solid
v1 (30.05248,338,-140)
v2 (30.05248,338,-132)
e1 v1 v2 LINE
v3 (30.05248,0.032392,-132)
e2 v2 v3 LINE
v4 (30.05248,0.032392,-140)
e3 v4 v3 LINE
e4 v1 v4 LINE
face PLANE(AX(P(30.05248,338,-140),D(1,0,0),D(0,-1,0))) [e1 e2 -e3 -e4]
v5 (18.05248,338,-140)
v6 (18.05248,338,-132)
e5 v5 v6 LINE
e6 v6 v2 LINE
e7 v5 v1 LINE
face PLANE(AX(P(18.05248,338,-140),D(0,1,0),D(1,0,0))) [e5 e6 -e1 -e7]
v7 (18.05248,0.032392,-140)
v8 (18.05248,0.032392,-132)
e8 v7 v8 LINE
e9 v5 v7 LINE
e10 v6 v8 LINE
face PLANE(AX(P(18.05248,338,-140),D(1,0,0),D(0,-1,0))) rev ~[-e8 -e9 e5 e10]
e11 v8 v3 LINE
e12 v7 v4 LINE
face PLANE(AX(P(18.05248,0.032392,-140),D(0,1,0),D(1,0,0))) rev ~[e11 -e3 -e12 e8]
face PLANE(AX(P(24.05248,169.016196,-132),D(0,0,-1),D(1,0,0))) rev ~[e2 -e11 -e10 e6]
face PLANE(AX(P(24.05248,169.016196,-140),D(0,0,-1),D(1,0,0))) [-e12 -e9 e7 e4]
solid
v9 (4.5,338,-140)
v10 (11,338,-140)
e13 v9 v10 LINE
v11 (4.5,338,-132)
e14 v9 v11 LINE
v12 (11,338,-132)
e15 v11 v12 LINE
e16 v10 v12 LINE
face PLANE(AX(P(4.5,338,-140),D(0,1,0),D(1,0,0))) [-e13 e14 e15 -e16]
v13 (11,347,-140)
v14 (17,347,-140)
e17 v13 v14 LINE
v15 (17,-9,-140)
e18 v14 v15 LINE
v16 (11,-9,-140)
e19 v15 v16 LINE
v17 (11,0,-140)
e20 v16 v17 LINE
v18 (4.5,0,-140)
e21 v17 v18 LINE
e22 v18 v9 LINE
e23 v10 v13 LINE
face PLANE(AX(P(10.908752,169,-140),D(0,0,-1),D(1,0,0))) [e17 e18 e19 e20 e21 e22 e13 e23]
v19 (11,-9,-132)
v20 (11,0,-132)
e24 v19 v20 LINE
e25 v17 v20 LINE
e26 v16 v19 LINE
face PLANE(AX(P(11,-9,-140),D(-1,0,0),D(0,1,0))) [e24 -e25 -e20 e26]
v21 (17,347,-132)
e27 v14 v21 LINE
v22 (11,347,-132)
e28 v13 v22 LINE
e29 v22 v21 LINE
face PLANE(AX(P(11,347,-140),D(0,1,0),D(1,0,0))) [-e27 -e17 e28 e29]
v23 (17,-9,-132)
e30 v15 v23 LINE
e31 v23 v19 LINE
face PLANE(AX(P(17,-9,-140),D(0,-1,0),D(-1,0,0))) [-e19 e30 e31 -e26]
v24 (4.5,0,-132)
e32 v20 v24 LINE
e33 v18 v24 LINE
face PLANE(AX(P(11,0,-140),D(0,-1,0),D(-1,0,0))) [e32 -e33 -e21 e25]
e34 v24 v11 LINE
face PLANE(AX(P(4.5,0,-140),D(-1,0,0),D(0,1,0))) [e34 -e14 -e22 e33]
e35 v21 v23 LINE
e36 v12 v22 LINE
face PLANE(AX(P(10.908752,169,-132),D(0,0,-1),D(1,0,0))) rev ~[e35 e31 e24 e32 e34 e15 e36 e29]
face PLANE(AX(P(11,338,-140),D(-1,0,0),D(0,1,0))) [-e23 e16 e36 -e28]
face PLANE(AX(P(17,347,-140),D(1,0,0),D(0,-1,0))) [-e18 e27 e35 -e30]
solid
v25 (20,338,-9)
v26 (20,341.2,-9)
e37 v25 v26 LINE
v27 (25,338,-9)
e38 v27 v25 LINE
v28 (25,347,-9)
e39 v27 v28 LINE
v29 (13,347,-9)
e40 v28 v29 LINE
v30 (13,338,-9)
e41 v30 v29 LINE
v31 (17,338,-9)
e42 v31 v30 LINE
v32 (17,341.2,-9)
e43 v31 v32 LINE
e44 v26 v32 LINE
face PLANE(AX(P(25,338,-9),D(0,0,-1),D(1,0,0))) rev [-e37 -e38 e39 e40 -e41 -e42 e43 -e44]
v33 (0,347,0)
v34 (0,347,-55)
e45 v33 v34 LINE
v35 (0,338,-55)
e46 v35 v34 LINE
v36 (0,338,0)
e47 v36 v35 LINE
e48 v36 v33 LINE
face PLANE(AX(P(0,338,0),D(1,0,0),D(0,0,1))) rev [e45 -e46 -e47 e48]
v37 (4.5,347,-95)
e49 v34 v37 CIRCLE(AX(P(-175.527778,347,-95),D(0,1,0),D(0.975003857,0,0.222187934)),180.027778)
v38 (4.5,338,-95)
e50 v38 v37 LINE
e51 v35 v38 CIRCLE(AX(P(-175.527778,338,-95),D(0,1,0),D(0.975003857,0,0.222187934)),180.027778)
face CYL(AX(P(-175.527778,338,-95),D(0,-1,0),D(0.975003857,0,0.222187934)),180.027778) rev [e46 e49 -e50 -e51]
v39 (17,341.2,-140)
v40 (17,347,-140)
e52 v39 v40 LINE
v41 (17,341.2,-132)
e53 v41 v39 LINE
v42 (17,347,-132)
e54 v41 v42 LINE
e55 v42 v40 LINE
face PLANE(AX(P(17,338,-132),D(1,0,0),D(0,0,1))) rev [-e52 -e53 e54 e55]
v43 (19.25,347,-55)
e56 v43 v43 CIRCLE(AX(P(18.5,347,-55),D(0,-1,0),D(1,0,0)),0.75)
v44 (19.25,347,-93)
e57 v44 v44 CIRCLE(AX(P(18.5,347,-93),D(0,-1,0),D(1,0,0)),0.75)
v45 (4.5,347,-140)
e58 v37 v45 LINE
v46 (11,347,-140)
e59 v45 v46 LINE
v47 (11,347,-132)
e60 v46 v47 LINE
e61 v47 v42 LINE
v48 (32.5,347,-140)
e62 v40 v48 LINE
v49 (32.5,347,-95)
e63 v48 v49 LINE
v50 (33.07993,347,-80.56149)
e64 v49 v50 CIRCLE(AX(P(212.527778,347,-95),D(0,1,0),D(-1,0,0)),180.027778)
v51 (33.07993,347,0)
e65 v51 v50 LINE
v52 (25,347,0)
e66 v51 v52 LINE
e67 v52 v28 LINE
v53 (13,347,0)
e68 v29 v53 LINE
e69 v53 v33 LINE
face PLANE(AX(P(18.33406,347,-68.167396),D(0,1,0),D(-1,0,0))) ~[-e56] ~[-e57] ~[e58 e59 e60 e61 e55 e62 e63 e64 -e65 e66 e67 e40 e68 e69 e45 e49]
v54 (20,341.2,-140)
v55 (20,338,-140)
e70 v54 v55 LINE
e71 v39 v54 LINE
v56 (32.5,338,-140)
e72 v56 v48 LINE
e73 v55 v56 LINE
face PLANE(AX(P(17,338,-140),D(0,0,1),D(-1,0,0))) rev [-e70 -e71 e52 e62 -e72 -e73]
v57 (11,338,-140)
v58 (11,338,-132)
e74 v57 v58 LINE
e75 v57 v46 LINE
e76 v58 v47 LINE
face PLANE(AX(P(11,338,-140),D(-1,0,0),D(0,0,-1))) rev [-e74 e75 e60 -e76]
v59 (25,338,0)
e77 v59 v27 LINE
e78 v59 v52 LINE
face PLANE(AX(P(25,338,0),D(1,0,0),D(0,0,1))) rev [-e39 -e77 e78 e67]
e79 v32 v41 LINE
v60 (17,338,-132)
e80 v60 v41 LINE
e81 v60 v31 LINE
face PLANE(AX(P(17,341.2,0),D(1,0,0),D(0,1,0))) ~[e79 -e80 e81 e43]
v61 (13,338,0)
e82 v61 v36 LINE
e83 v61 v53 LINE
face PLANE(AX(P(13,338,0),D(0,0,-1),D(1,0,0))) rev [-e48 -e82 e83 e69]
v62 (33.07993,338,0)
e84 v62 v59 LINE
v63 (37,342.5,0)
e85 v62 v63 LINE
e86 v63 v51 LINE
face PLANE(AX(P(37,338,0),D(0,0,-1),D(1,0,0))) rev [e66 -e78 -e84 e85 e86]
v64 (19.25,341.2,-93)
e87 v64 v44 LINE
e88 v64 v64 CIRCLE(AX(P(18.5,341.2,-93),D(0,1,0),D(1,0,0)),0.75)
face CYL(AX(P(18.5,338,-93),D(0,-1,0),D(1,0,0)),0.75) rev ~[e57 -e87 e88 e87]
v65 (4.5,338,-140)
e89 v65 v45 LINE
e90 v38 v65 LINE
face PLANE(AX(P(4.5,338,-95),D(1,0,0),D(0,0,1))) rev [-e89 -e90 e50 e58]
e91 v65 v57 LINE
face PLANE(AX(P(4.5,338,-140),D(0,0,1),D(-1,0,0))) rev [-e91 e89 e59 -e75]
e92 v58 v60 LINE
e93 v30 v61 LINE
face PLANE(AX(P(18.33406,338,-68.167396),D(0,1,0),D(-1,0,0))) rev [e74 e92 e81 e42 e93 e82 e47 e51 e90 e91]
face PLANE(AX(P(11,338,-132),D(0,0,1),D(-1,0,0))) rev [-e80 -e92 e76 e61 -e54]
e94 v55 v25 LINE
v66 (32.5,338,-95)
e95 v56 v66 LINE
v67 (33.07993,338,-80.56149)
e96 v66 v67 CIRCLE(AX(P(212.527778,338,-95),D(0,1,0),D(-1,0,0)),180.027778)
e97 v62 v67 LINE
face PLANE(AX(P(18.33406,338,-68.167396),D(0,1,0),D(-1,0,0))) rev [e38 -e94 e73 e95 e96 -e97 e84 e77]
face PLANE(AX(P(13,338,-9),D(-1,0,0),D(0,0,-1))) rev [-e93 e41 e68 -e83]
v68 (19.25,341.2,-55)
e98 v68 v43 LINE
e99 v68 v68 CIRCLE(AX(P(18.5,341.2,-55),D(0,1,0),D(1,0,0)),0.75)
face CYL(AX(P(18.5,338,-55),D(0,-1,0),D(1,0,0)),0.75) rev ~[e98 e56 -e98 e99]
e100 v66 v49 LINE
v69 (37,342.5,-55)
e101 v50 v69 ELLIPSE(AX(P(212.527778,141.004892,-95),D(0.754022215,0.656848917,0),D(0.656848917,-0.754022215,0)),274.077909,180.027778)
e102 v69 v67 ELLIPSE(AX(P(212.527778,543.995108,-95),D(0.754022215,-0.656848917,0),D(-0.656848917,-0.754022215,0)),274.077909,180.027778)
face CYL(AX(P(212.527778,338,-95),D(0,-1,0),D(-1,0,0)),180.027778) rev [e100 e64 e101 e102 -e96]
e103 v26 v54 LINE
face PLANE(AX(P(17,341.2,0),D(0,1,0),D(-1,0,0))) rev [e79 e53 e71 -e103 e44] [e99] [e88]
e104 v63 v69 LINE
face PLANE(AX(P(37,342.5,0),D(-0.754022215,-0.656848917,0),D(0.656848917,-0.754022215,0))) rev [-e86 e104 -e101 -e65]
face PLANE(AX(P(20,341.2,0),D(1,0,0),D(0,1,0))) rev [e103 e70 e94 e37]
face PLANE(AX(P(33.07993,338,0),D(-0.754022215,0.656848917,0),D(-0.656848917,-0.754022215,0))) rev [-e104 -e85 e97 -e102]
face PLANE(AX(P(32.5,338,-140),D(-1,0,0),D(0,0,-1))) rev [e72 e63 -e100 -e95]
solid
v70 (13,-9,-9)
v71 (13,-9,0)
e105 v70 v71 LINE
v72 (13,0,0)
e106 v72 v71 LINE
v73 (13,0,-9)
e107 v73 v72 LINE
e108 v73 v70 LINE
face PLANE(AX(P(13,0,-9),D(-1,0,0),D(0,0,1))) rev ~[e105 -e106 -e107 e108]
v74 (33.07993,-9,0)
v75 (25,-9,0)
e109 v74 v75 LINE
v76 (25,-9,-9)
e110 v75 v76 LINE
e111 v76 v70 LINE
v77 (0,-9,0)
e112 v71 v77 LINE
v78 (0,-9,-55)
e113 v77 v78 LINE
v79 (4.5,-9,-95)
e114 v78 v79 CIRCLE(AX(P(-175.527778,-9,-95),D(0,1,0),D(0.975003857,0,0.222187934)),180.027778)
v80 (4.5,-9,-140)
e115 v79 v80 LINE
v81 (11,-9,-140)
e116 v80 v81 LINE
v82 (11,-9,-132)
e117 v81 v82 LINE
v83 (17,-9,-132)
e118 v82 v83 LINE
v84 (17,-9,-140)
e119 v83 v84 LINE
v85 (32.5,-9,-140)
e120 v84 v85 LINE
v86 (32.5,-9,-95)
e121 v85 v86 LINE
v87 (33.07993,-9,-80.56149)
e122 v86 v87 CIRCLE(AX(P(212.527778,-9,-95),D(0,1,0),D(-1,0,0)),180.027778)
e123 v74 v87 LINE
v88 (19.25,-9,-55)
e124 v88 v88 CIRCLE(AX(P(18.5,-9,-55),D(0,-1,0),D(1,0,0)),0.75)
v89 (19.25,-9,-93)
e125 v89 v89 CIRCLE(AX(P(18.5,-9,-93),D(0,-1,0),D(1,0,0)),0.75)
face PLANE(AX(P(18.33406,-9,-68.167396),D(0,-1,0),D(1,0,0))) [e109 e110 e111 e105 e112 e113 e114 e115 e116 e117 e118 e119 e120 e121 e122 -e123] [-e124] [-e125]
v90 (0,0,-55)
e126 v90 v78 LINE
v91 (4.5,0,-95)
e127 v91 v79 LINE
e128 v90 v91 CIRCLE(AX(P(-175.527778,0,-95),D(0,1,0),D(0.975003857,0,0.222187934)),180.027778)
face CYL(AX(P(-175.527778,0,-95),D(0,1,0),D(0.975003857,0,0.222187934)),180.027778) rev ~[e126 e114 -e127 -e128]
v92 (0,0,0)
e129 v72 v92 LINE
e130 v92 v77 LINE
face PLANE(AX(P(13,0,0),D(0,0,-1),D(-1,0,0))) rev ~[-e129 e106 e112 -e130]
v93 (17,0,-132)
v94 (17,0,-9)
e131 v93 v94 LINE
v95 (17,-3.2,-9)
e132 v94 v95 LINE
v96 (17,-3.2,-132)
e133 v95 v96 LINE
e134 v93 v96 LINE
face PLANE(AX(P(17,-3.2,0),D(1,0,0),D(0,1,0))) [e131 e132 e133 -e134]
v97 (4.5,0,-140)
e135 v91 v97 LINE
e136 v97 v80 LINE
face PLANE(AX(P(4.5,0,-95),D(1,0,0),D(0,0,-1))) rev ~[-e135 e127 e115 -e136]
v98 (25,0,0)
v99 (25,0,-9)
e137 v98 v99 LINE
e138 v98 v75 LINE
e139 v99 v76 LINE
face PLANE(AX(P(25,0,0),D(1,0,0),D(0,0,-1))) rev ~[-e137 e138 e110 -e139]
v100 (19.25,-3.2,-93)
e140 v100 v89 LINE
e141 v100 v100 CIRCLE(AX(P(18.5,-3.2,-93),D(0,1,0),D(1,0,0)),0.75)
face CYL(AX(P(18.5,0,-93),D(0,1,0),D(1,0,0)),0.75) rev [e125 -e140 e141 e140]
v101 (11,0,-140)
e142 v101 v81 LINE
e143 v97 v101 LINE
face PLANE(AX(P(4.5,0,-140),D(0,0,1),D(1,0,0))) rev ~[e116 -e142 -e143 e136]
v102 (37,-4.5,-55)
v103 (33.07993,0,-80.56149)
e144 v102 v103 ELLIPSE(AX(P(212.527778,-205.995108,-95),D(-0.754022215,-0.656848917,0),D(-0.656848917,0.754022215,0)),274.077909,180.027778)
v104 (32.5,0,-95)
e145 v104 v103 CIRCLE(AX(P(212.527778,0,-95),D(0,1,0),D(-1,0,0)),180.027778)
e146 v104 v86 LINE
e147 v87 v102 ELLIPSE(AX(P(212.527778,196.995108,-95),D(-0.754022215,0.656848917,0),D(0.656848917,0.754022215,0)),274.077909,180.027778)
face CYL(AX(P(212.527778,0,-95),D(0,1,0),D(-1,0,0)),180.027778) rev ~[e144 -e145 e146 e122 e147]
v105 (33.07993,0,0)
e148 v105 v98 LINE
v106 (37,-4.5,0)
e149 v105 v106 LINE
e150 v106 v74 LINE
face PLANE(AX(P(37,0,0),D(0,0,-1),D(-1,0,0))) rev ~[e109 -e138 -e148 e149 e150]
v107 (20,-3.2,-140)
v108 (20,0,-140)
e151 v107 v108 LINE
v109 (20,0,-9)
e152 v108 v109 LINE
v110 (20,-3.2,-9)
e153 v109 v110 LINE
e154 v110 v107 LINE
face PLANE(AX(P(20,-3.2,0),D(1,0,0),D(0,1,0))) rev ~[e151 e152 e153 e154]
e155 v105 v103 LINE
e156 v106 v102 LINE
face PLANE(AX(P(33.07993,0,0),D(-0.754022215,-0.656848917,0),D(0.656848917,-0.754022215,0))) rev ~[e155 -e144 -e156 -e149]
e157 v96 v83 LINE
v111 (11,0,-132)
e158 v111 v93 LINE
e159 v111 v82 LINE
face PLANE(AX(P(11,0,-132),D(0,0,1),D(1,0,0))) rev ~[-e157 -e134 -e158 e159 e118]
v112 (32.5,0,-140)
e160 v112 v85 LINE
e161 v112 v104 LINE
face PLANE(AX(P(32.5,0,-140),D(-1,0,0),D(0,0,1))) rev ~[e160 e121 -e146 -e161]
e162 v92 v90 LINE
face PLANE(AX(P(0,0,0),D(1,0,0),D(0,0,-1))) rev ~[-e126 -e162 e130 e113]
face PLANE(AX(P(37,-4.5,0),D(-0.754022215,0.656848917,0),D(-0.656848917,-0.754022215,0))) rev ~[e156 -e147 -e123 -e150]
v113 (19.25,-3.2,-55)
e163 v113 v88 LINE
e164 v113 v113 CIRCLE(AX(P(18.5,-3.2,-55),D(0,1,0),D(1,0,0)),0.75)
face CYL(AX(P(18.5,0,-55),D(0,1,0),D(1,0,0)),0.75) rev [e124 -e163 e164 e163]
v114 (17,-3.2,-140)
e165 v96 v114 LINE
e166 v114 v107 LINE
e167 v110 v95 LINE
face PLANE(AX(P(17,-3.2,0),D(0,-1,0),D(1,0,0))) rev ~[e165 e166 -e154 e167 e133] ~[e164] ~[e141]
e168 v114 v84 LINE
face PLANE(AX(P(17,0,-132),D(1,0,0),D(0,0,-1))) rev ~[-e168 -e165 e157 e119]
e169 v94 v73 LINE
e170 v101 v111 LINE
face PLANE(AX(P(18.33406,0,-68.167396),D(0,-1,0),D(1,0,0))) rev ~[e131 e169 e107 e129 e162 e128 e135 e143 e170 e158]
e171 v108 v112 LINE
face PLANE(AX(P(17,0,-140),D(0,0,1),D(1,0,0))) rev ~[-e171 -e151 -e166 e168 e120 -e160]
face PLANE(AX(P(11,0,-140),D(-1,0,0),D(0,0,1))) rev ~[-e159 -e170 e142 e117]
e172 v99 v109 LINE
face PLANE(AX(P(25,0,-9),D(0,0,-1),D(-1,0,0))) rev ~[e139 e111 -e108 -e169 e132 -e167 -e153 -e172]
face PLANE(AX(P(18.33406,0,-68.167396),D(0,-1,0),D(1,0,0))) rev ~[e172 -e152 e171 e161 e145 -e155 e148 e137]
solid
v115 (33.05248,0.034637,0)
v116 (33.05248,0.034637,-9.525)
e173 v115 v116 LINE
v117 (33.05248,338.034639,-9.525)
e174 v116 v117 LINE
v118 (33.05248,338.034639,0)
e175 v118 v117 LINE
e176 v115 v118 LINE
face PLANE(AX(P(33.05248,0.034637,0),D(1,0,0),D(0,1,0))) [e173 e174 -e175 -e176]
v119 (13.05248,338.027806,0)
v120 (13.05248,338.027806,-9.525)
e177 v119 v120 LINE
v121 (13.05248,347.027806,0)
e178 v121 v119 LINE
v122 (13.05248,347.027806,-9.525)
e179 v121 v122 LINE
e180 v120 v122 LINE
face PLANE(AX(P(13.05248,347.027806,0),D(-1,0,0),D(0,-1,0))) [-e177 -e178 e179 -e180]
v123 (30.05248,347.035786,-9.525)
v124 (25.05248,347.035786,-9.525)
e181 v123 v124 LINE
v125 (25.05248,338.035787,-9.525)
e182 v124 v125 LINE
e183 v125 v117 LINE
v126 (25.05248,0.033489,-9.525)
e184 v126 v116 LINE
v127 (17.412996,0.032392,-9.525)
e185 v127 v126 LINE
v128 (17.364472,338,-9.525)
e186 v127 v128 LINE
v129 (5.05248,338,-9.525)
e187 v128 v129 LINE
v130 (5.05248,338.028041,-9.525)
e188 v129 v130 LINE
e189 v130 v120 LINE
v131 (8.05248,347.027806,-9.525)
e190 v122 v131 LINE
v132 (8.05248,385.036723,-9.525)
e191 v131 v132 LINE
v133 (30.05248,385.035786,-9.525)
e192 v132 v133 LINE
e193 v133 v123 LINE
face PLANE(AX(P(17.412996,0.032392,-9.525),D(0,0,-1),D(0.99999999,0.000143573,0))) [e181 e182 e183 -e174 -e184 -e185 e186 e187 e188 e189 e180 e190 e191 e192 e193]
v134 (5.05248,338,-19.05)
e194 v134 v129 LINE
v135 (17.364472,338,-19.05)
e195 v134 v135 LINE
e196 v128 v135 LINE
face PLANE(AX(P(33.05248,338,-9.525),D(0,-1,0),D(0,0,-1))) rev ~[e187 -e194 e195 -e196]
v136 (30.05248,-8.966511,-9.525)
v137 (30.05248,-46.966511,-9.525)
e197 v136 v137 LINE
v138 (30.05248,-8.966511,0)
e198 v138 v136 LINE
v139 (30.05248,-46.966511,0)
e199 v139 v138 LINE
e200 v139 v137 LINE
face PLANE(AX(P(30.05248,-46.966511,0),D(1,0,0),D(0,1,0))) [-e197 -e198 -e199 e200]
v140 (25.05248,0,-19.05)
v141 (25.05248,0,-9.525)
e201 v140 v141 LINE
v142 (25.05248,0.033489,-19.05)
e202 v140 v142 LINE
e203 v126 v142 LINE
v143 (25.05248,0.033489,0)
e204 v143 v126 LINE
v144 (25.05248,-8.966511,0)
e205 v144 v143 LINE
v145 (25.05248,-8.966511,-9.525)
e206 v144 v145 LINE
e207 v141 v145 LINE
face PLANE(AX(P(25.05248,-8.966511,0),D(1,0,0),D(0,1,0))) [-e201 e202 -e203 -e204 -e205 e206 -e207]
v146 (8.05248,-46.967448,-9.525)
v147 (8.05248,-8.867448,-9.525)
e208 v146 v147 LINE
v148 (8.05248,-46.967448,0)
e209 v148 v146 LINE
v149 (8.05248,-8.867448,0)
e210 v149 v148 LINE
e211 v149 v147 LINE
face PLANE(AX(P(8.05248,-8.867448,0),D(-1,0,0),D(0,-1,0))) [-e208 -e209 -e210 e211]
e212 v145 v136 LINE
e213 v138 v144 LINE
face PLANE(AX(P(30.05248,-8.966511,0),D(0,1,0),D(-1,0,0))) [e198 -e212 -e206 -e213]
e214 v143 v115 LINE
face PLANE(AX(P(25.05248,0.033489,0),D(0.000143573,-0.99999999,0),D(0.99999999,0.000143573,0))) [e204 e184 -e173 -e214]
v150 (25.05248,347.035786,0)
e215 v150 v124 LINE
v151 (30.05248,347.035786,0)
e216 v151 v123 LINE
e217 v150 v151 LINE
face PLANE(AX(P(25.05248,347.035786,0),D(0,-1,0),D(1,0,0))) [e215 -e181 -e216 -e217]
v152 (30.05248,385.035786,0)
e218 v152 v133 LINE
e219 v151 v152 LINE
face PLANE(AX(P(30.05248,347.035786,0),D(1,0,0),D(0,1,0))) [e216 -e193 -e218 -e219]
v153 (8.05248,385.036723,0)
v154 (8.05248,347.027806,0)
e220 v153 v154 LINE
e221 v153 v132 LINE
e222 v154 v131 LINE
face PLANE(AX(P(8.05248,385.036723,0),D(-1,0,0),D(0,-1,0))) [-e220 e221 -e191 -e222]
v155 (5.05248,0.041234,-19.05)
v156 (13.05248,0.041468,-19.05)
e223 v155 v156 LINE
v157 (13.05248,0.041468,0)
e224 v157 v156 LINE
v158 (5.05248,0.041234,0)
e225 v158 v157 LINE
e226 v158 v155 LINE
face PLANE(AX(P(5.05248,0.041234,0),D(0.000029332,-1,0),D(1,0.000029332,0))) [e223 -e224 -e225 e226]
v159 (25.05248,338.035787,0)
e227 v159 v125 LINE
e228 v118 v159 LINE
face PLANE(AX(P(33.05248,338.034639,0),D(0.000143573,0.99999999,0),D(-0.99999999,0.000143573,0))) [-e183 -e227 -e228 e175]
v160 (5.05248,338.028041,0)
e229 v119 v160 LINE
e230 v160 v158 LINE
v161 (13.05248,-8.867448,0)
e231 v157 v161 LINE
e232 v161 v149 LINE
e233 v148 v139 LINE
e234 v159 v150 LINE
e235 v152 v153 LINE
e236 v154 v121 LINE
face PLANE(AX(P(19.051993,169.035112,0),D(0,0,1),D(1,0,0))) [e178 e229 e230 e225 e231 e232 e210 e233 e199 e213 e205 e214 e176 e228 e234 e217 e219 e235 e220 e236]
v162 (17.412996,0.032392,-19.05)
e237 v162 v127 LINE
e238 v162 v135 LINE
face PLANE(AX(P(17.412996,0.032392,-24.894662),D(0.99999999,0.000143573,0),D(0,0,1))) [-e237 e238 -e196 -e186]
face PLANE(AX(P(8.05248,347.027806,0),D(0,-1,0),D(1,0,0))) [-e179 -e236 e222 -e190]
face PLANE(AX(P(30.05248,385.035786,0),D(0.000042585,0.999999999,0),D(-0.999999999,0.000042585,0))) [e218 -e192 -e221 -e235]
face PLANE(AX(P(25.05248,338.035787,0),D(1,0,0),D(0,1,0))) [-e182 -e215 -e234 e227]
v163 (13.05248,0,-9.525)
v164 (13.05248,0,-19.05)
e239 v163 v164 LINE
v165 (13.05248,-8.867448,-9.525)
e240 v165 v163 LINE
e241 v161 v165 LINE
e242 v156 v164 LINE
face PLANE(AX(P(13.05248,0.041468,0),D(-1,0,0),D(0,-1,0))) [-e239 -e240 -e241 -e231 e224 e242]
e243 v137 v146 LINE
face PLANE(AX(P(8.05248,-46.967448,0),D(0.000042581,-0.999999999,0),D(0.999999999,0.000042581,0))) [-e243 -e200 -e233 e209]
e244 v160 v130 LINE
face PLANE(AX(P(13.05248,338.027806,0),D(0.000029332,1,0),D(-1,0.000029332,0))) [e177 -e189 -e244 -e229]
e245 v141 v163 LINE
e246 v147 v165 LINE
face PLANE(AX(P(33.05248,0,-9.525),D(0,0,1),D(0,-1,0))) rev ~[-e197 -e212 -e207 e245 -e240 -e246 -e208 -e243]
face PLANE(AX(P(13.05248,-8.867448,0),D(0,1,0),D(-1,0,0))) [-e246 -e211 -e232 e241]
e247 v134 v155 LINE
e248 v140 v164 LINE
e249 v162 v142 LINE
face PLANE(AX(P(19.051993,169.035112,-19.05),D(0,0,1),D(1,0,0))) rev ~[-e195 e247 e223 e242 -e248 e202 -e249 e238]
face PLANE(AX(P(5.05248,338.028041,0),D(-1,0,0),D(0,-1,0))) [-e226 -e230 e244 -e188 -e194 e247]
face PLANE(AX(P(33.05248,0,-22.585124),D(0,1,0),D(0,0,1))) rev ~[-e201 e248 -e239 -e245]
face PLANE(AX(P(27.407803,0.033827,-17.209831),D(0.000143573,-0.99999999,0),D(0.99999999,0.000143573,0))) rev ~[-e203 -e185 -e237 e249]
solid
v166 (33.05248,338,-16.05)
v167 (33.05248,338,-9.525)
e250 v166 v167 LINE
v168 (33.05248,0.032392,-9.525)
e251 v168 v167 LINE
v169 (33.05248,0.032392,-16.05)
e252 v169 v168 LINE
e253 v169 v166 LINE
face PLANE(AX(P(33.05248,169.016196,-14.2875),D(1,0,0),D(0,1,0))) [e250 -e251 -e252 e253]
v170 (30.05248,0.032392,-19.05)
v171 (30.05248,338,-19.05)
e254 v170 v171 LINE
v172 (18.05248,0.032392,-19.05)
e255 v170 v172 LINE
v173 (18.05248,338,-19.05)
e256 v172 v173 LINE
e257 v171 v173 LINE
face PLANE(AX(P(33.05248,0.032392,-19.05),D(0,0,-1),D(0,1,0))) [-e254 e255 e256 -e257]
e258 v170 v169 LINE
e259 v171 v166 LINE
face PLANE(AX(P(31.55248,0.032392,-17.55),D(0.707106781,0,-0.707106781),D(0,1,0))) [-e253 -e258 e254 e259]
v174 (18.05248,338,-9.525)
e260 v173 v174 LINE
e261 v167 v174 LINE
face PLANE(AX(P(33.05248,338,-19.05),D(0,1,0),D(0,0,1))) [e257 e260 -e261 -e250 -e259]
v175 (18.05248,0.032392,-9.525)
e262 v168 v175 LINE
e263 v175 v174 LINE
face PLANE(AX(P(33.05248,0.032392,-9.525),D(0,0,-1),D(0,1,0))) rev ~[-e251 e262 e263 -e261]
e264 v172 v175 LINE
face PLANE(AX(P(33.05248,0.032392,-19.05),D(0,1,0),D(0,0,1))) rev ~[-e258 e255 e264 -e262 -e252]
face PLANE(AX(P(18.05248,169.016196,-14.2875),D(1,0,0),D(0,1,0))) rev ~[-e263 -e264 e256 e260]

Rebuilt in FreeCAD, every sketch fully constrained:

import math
import FreeCAD as App
import Part
import Sketcher
from FreeCAD import Vector
Q = App.Units.Quantity


def edges_at(feature, points):
    """Names of the edges that pass closest to the given points."""
    edges = feature.Shape.Edges
    near = lambda p: min(range(len(edges)), key=lambda i: edges[i].distToShape(Part.Vertex(*p))[0])
    return sorted({f"Edge{near(p) + 1}" for p in points})

doc = App.newDocument("Part")
body = doc.addObject("PartDesign::Body", "Body")

sketch1 = body.newObject("Sketcher::SketchObject", "Sketch")
sketch1.AttachmentSupport = (doc.getObject("XY_Plane"), [""])
sketch1.MapMode = "FlatFace"
sketch1.addGeometry(Part.LineSegment(Vector(25, 0, 0), Vector(33, 0, 0)), False)
sketch1.addGeometry(Part.LineSegment(Vector(33, 0, 0), Vector(33, 338, 0)), False)
sketch1.addGeometry(Part.LineSegment(Vector(33, 338, 0), Vector(25, 338, 0)), False)
sketch1.addGeometry(Part.LineSegment(Vector(25, 338, 0), Vector(25, 347, 0)), False)
sketch1.addGeometry(Part.LineSegment(Vector(25, 347, 0), Vector(30, 347, 0)), False)
sketch1.addGeometry(Part.LineSegment(Vector(30, 347, 0), Vector(30, 385, 0)), False)
sketch1.addGeometry(Part.LineSegment(Vector(30, 385, 0), Vector(8, 385, 0)), False)
sketch1.addGeometry(Part.LineSegment(Vector(8, 385, 0), Vector(8, 347, 0)), False)
sketch1.addGeometry(Part.LineSegment(Vector(8, 347, 0), Vector(13, 347, 0)), False)
sketch1.addGeometry(Part.LineSegment(Vector(13, 347, 0), Vector(13, 338, 0)), False)
sketch1.addGeometry(Part.LineSegment(Vector(13, 338, 0), Vector(5, 338, 0)), False)
sketch1.addGeometry(Part.LineSegment(Vector(5, 338, 0), Vector(5, 0, 0)), False)
sketch1.addGeometry(Part.LineSegment(Vector(5, 0, 0), Vector(13, 0, 0)), False)
sketch1.addGeometry(Part.LineSegment(Vector(13, 0, 0), Vector(13, -9, 0)), False)
sketch1.addGeometry(Part.LineSegment(Vector(13, -9, 0), Vector(8, -9, 0)), False)
sketch1.addGeometry(Part.LineSegment(Vector(8, -9, 0), Vector(8, -47, 0)), False)
sketch1.addGeometry(Part.LineSegment(Vector(8, -47, 0), Vector(30, -47, 0)), False)
sketch1.addGeometry(Part.LineSegment(Vector(30, -47, 0), Vector(30, -9, 0)), False)
sketch1.addGeometry(Part.LineSegment(Vector(30, -9, 0), Vector(25, -9, 0)), False)
sketch1.addGeometry(Part.LineSegment(Vector(25, -9, 0), Vector(25, 0, 0)), False)
sketch1.addConstraint(Sketcher.Constraint("Coincident", 0, 2, 1, 1))
sketch1.addConstraint(Sketcher.Constraint("Coincident", 1, 2, 2, 1))
sketch1.addConstraint(Sketcher.Constraint("Coincident", 2, 2, 3, 1))
sketch1.addConstraint(Sketcher.Constraint("Coincident", 3, 2, 4, 1))
sketch1.addConstraint(Sketcher.Constraint("Coincident", 4, 2, 5, 1))
sketch1.addConstraint(Sketcher.Constraint("Coincident", 5, 2, 6, 1))
sketch1.addConstraint(Sketcher.Constraint("Coincident", 6, 2, 7, 1))
sketch1.addConstraint(Sketcher.Constraint("Coincident", 7, 2, 8, 1))
sketch1.addConstraint(Sketcher.Constraint("Coincident", 8, 2, 9, 1))
sketch1.addConstraint(Sketcher.Constraint("Coincident", 9, 2, 10, 1))
sketch1.addConstraint(Sketcher.Constraint("Coincident", 10, 2, 11, 1))
sketch1.addConstraint(Sketcher.Constraint("Coincident", 11, 2, 12, 1))
sketch1.addConstraint(Sketcher.Constraint("Coincident", 12, 2, 13, 1))
sketch1.addConstraint(Sketcher.Constraint("Coincident", 13, 2, 14, 1))
sketch1.addConstraint(Sketcher.Constraint("Coincident", 14, 2, 15, 1))
sketch1.addConstraint(Sketcher.Constraint("Coincident", 15, 2, 16, 1))
sketch1.addConstraint(Sketcher.Constraint("Coincident", 16, 2, 17, 1))
sketch1.addConstraint(Sketcher.Constraint("Coincident", 17, 2, 18, 1))
sketch1.addConstraint(Sketcher.Constraint("Coincident", 18, 2, 19, 1))
sketch1.addConstraint(Sketcher.Constraint("Coincident", 19, 2, 0, 1))
sketch1.addConstraint(Sketcher.Constraint("Vertical", 1))
sketch1.addConstraint(Sketcher.Constraint("Vertical", 3))
sketch1.addConstraint(Sketcher.Constraint("Horizontal", 4))
sketch1.addConstraint(Sketcher.Constraint("Vertical", 5))
sketch1.addConstraint(Sketcher.Constraint("Vertical", 7))
sketch1.addConstraint(Sketcher.Constraint("Horizontal", 8))
sketch1.addConstraint(Sketcher.Constraint("Vertical", 9))
sketch1.addConstraint(Sketcher.Constraint("Vertical", 11))
sketch1.addConstraint(Sketcher.Constraint("Vertical", 13))
sketch1.addConstraint(Sketcher.Constraint("Horizontal", 14))
sketch1.addConstraint(Sketcher.Constraint("Vertical", 15))
sketch1.addConstraint(Sketcher.Constraint("Vertical", 17))
sketch1.addConstraint(Sketcher.Constraint("Horizontal", 18))
sketch1.addConstraint(Sketcher.Constraint("Vertical", 19))
sketch1.addConstraint(Sketcher.Constraint("Vertical", 9, 2, 12, 2))
sketch1.addConstraint(Sketcher.Constraint("Vertical", 7, 2, 14, 2))
sketch1.addConstraint(Sketcher.Constraint("Vertical", 5, 2, 16, 2))
sketch1.addConstraint(Sketcher.Constraint("Vertical", 3, 2, 18, 2))
sketch1.addConstraint(Sketcher.Constraint("Equal", 4, 8))
sketch1.addConstraint(Sketcher.Constraint("Equal", 3, 9))
sketch1.addConstraint(Sketcher.Constraint("Equal", 5, 17))
sketch1.addConstraint(Sketcher.Constraint("Equal", 9, 19))
sketch1.addConstraint(Sketcher.Constraint("Equal", 2, 10))
sketch1.addConstraint(Sketcher.Constraint("DistanceX", 4, 1, 4, 2, 5.0))
sketch1.addConstraint(Sketcher.Constraint("DistanceY", 1, 1, 1, 2, 338.000001))
sketch1.addConstraint(Sketcher.Constraint("DistanceY", 3, 1, 3, 2, 8.999999))
sketch1.addConstraint(Sketcher.Constraint("DistanceY", 5, 1, 5, 2, 38.0))
sketch1.addConstraint(Sketcher.Constraint("Distance", 0, 8.0))
sketch1.addConstraint(Sketcher.Constraint("Distance", 6, 22.0))
sketch1.addConstraint(Sketcher.Constraint("DistanceY", 15, 2, 15, 1, 38.1))
sketch1.addConstraint(Sketcher.Constraint("DistanceY", 7, 2, 7, 1, 38.008917))
sketch1.addConstraint(Sketcher.Constraint("DistanceY", 11, 2, 11, 1, 337.986807))
sketch1.addConstraint(Sketcher.Constraint("DistanceY", 13, 2, 13, 1, 8.908917))
sketch1.addConstraint(Sketcher.Constraint("DistanceX", -1, 1, 0, 2, 33.05248))
sketch1.addConstraint(Sketcher.Constraint("DistanceY", -1, 1, 1, 2, 338.034639))
sketch1.addConstraint(Sketcher.Constraint("DistanceY", -1, 1, 10, 2, 338.028041))
sketch1.addConstraint(Sketcher.Constraint("DistanceY", -1, 1, 12, 2, 0.041468))
sketch1.addConstraint(Sketcher.Constraint("DistanceY", 16, 2, -1, 1, 46.966511))
sketch1.addConstraint(Sketcher.Constraint("DistanceY", 1, 2, 2, 2, 0.001149))
sketch1.addConstraint(Sketcher.Constraint("DistanceY", 7, 2, 3, 2, 0.00798))
pad1 = body.newObject("PartDesign::Pad", "Pad")
pad1.Profile = sketch1
pad1.Length = 19.05
pad1.Reversed = True

sketch2 = body.newObject("Sketcher::SketchObject", "Sketch001")
sketch2.Placement = App.Placement(Vector(-0.000004, 0.029892, 0), App.Rotation(Vector(0.99999999, 0.000143573, 0), Vector(0, 0, 1.000000001), Vector(0.000143573, -0.99999999, 0), "ZXY"))
sketch2.addGeometry(Part.LineSegment(Vector(17, -10, 0), Vector(17, -25, 0)), False)
sketch2.addGeometry(Part.LineSegment(Vector(17, -25, 0), Vector(37, -25, 0)), False)
sketch2.addGeometry(Part.LineSegment(Vector(37, -25, 0), Vector(37, -10, 0)), False)
sketch2.addGeometry(Part.LineSegment(Vector(37, -10, 0), Vector(17, -10, 0)), False)
sketch2.addConstraint(Sketcher.Constraint("Coincident", 0, 2, 1, 1))
sketch2.addConstraint(Sketcher.Constraint("Coincident", 1, 2, 2, 1))
sketch2.addConstraint(Sketcher.Constraint("Coincident", 2, 2, 3, 1))
sketch2.addConstraint(Sketcher.Constraint("Coincident", 3, 2, 0, 1))
sketch2.addConstraint(Sketcher.Constraint("Vertical", 0))
sketch2.addConstraint(Sketcher.Constraint("Horizontal", 1))
sketch2.addConstraint(Sketcher.Constraint("Vertical", 2))
sketch2.addConstraint(Sketcher.Constraint("Horizontal", 3))
sketch2.addConstraint(Sketcher.Constraint("DistanceX", -1, 1, 0, 2, 17.413))
sketch2.addConstraint(Sketcher.Constraint("DistanceY", 2, 2, -1, 1, 9.525))
sketch2.addConstraint(Sketcher.Constraint("DistanceX", 1, 1, 1, 2, 19.989615))
sketch2.addConstraint(Sketcher.Constraint("DistanceY", 0, 2, 0, 1, 15.369662))
pocket1 = body.newObject("PartDesign::Pocket", "Pocket")
pocket1.Profile = sketch2
pocket1.Length = 338.001146

sketch3 = body.newObject("Sketcher::SketchObject", "Sketch002")
sketch3.AttachmentSupport = (doc.getObject("YZ_Plane"), [""])
sketch3.MapMode = "FlatFace"
sketch3.AttachmentOffset = App.Placement(Vector(0, 0, 33.05248), App.Rotation())
sketch3.addGeometry(Part.LineSegment(Vector(0, -23, 0), Vector(0, -10, 0)), False)
sketch3.addGeometry(Part.LineSegment(Vector(0, -10, 0), Vector(-57, -10, 0)), False)
sketch3.addGeometry(Part.LineSegment(Vector(-57, -10, 0), Vector(-57, -22, 0)), False)
sketch3.addGeometry(Part.LineSegment(Vector(-57, -22, 0), Vector(0, -23, 0)), False)
sketch3.addGeometry(Part.LineSegment(Vector(338, -10, 0), Vector(338, -24, 0)), False)
sketch3.addGeometry(Part.LineSegment(Vector(338, -24, 0), Vector(395, -24, 0)), False)
sketch3.addGeometry(Part.LineSegment(Vector(395, -24, 0), Vector(394, -10, 0)), False)
sketch3.addGeometry(Part.LineSegment(Vector(394, -10, 0), Vector(338, -10, 0)), False)
sketch3.addConstraint(Sketcher.Constraint("Coincident", 0, 2, 1, 1))
sketch3.addConstraint(Sketcher.Constraint("Coincident", 1, 2, 2, 1))
sketch3.addConstraint(Sketcher.Constraint("Coincident", 2, 2, 3, 1))
sketch3.addConstraint(Sketcher.Constraint("Coincident", 3, 2, 0, 1))
sketch3.addConstraint(Sketcher.Constraint("Coincident", 4, 2, 5, 1))
sketch3.addConstraint(Sketcher.Constraint("Coincident", 5, 2, 6, 1))
sketch3.addConstraint(Sketcher.Constraint("Coincident", 6, 2, 7, 1))
sketch3.addConstraint(Sketcher.Constraint("Coincident", 7, 2, 4, 1))
sketch3.addConstraint(Sketcher.Constraint("Vertical", 0))
sketch3.addConstraint(Sketcher.Constraint("Horizontal", 1))
sketch3.addConstraint(Sketcher.Constraint("Vertical", 2))
sketch3.addConstraint(Sketcher.Constraint("Vertical", 4))
sketch3.addConstraint(Sketcher.Constraint("Horizontal", 5))
sketch3.addConstraint(Sketcher.Constraint("Horizontal", 7))
sketch3.addConstraint(Sketcher.Constraint("PointOnObject", 0, 2, -2))
sketch3.addConstraint(Sketcher.Constraint("Horizontal", 1, 2, 6, 2))
sketch3.addConstraint(Sketcher.Constraint("DistanceX", -1, 1, 4, 2, 338.0))
sketch3.addConstraint(Sketcher.Constraint("Distance", 3, 57.039998))
sketch3.addConstraint(Sketcher.Constraint("DistanceY", 0, 2, -1, 1, 9.525))
sketch3.addConstraint(Sketcher.Constraint("DistanceY", 3, 2, 2, 2, 0.374999))
sketch3.addConstraint(Sketcher.Constraint("DistanceY", 4, 2, 2, 2, 2.039801))
sketch3.addConstraint(Sketcher.Constraint("DistanceX", 5, 1, 5, 2, 56.569248))
sketch3.addConstraint(Sketcher.Constraint("DistanceX", 7, 2, 7, 1, 56.421607))
sketch3.addConstraint(Sketcher.Constraint("DistanceY", 0, 1, 0, 2, 13.060124))
pocket2 = body.newObject("PartDesign::Pocket", "Pocket001")
pocket2.Profile = sketch3
pocket2.Type = "ThroughAll"
body2 = doc.addObject("PartDesign::Body", "Body001")

sketch4 = body2.newObject("Sketcher::SketchObject", "Sketch003")
sketch4.AttachmentSupport = (doc.getObject("YZ_Plane001"), [""])
sketch4.MapMode = "FlatFace"
sketch4.AttachmentOffset = App.Placement(Vector(0, 0, 33.05248), App.Rotation())
sketch4.addGeometry(Part.LineSegment(Vector(0, -10, 0), Vector(0, -19, 0)), False)
sketch4.addGeometry(Part.LineSegment(Vector(0, -19, 0), Vector(338, -19, 0)), False)
sketch4.addGeometry(Part.LineSegment(Vector(338, -19, 0), Vector(338, -10, 0)), False)
sketch4.addGeometry(Part.LineSegment(Vector(338, -10, 0), Vector(0, -10, 0)), False)
sketch4.addConstraint(Sketcher.Constraint("Coincident", 0, 2, 1, 1))
sketch4.addConstraint(Sketcher.Constraint("Coincident", 1, 2, 2, 1))
sketch4.addConstraint(Sketcher.Constraint("Coincident", 2, 2, 3, 1))
sketch4.addConstraint(Sketcher.Constraint("Coincident", 3, 2, 0, 1))
sketch4.addConstraint(Sketcher.Constraint("Vertical", 0))
sketch4.addConstraint(Sketcher.Constraint("Horizontal", 1))
sketch4.addConstraint(Sketcher.Constraint("Vertical", 2))
sketch4.addConstraint(Sketcher.Constraint("Horizontal", 3))
sketch4.addConstraint(Sketcher.Constraint("DistanceX", -1, 1, 1, 2, 338.0))
sketch4.addConstraint(Sketcher.Constraint("DistanceY", 0, 2, 0, 1, 9.525))
sketch4.addConstraint(Sketcher.Constraint("DistanceY", 0, 2, -1, 1, 19.05))
sketch4.addConstraint(Sketcher.Constraint("DistanceX", 1, 1, 1, 2, 337.967608))
pad2 = body2.newObject("PartDesign::Pad", "Pad001")
pad2.Profile = sketch4
pad2.Length = 15
pad2.Reversed = True
doc.recompute()

chamfer = body2.newObject("PartDesign::Chamfer", "Chamfer")
chamfer.Base = (pad2, edges_at(pad2, [(33.052, 169.016, -19.05)]))
chamfer.Size = 3
body3 = doc.addObject("PartDesign::Body", "Body002")

sketch5 = body3.newObject("Sketcher::SketchObject", "Sketch004")
sketch5.AttachmentSupport = (doc.getObject("XZ_Plane002"), [""])
sketch5.MapMode = "FlatFace"
sketch5.addGeometry(Part.LineSegment(Vector(13, 0, 0), Vector(0, 0, 0)), False)
sketch5.addGeometry(Part.LineSegment(Vector(0, 0, 0), Vector(0, -55, 0)), False)
sketch5.addGeometry(Part.ArcOfCircle(Part.Circle(Vector(-175.5, -95, 0), Vector(0, 0, 1), 180), math.radians(0), math.radians(12.84)), False)
sketch5.addGeometry(Part.LineSegment(Vector(4.5, -95, 0), Vector(4.5, -140, 0)), False)
sketch5.addGeometry(Part.LineSegment(Vector(4.5, -140, 0), Vector(11, -140, 0)), False)
sketch5.addGeometry(Part.LineSegment(Vector(11, -140, 0), Vector(11, -132, 0)), False)
sketch5.addGeometry(Part.LineSegment(Vector(11, -132, 0), Vector(17, -132, 0)), False)
sketch5.addGeometry(Part.LineSegment(Vector(17, -132, 0), Vector(17, -140, 0)), False)
sketch5.addGeometry(Part.LineSegment(Vector(17, -140, 0), Vector(32.5, -140, 0)), False)
sketch5.addGeometry(Part.LineSegment(Vector(32.5, -140, 0), Vector(32.5, -95, 0)), False)
sketch5.addGeometry(Part.ArcOfCircle(Part.Circle(Vector(212.5, -95, 0), Vector(0, 0, 1), 180), math.radians(167.16), math.radians(180)), False)
sketch5.addGeometry(Part.LineSegment(Vector(37, -55, 0), Vector(37, 0, 0)), False)
sketch5.addGeometry(Part.LineSegment(Vector(37, 0, 0), Vector(25, 0, 0)), False)
sketch5.addGeometry(Part.LineSegment(Vector(25, 0, 0), Vector(25, -9, 0)), False)
sketch5.addGeometry(Part.LineSegment(Vector(25, -9, 0), Vector(13, -9, 0)), False)
sketch5.addGeometry(Part.LineSegment(Vector(13, -9, 0), Vector(13, 0, 0)), False)
sketch5.addGeometry(Part.Circle(Vector(18.5, -93, 0), Vector(0, 0, 1), 0.8), False)
sketch5.addGeometry(Part.Circle(Vector(18.5, -55, 0), Vector(0, 0, 1), 0.8), False)
sketch5.addConstraint(Sketcher.Constraint("Coincident", 0, 2, 1, 1))
sketch5.addConstraint(Sketcher.Constraint("Coincident", 1, 2, 2, 2))
sketch5.addConstraint(Sketcher.Constraint("Tangent", 2, 1, 3, 1))
sketch5.addConstraint(Sketcher.Constraint("Coincident", 3, 2, 4, 1))
sketch5.addConstraint(Sketcher.Constraint("Coincident", 4, 2, 5, 1))
sketch5.addConstraint(Sketcher.Constraint("Coincident", 5, 2, 6, 1))
sketch5.addConstraint(Sketcher.Constraint("Coincident", 6, 2, 7, 1))
sketch5.addConstraint(Sketcher.Constraint("Coincident", 7, 2, 8, 1))
sketch5.addConstraint(Sketcher.Constraint("Coincident", 8, 2, 9, 1))
sketch5.addConstraint(Sketcher.Constraint("Tangent", 9, 2, 10, 2))
sketch5.addConstraint(Sketcher.Constraint("Coincident", 10, 1, 11, 1))
sketch5.addConstraint(Sketcher.Constraint("Coincident", 11, 2, 12, 1))
sketch5.addConstraint(Sketcher.Constraint("Coincident", 12, 2, 13, 1))
sketch5.addConstraint(Sketcher.Constraint("Coincident", 13, 2, 14, 1))
sketch5.addConstraint(Sketcher.Constraint("Coincident", 14, 2, 15, 1))
sketch5.addConstraint(Sketcher.Constraint("Coincident", 15, 2, 0, 1))
sketch5.addConstraint(Sketcher.Constraint("Horizontal", 0))
sketch5.addConstraint(Sketcher.Constraint("Vertical", 1))
sketch5.addConstraint(Sketcher.Constraint("Vertical", 3))
sketch5.addConstraint(Sketcher.Constraint("Horizontal", 4))
sketch5.addConstraint(Sketcher.Constraint("Vertical", 5))
sketch5.addConstraint(Sketcher.Constraint("Horizontal", 6))
sketch5.addConstraint(Sketcher.Constraint("Vertical", 7))
sketch5.addConstraint(Sketcher.Constraint("Horizontal", 8))
sketch5.addConstraint(Sketcher.Constraint("Vertical", 9))
sketch5.addConstraint(Sketcher.Constraint("Vertical", 11))
sketch5.addConstraint(Sketcher.Constraint("Horizontal", 12))
sketch5.addConstraint(Sketcher.Constraint("Vertical", 13))
sketch5.addConstraint(Sketcher.Constraint("Horizontal", 14))
sketch5.addConstraint(Sketcher.Constraint("Vertical", 15))
sketch5.addConstraint(Sketcher.Constraint("Coincident", 0, 2, -1, 1))
sketch5.addConstraint(Sketcher.Constraint("Equal", 2, 10))
sketch5.addConstraint(Sketcher.Constraint("Equal", 16, 17))
sketch5.addConstraint(Sketcher.Constraint("PointOnObject", 11, 2, -1))
sketch5.addConstraint(Sketcher.Constraint("Horizontal", 2, 3, 10, 3))
sketch5.addConstraint(Sketcher.Constraint("Horizontal", 17, 3, 1, 2))
sketch5.addConstraint(Sketcher.Constraint("Horizontal", 4, 2, 7, 2))
sketch5.addConstraint(Sketcher.Constraint("Horizontal", 1, 2, 10, 1))
sketch5.addConstraint(Sketcher.Constraint("Vertical", 16, 3, 17, 3))
sketch5.addConstraint(Sketcher.Constraint("Equal", 12, 14))
sketch5.addConstraint(Sketcher.Constraint("Diameter", 16, 1.5))
sketch5.addConstraint(Sketcher.Constraint("DistanceX", 0, 2, 0, 1, 13.0))
sketch5.addConstraint(Sketcher.Constraint("DistanceX", 6, 1, 6, 2, 6.0))
sketch5.addConstraint(Sketcher.Constraint("DistanceX", 12, 2, 12, 1, 12.0))
sketch5.addConstraint(Sketcher.Constraint("DistanceY", 1, 2, 1, 1, 55.0))
sketch5.addConstraint(Sketcher.Constraint("DistanceY", 3, 2, 3, 1, 45.0))
sketch5.addConstraint(Sketcher.Constraint("DistanceY", 5, 1, 5, 2, 8.0))
sketch5.addConstraint(Sketcher.Constraint("DistanceY", 13, 2, 13, 1, 9.0))
sketch5.addConstraint(Sketcher.Constraint("DistanceX", 4, 1, 4, 2, 6.5))
sketch5.addConstraint(Sketcher.Constraint("DistanceX", 8, 1, 8, 2, 15.5))
sketch5.addConstraint(Sketcher.Constraint("DistanceY", 2, 3, -1, 1, 95.0))
sketch5.addConstraint(Sketcher.Constraint("DistanceY", 16, 3, -1, 1, 93.0))
sketch5.addConstraint(Sketcher.Constraint("DistanceX", 2, 1, 16, 3, 14.0))
pad3 = body3.newObject("PartDesign::Pad", "Pad002")
pad3.Profile = sketch5
pad3.Length = 9

sketch6 = body3.newObject("Sketcher::SketchObject", "Sketch005")
sketch6.AttachmentSupport = (doc.getObject("XY_Plane002"), [""])
sketch6.MapMode = "FlatFace"
sketch6.addGeometry(Part.LineSegment(Vector(17, 0.8, 0), Vector(17, -3.2, 0)), False)
sketch6.addGeometry(Part.LineSegment(Vector(17, -3.2, 0), Vector(20, -3.2, 0)), False)
sketch6.addGeometry(Part.LineSegment(Vector(20, -3.2, 0), Vector(20, 0.8, 0)), False)
sketch6.addGeometry(Part.LineSegment(Vector(20, 0.8, 0), Vector(17, 0.8, 0)), False)
sketch6.addGeometry(Part.LineSegment(Vector(33.1, 0, 0), Vector(37, -4.5, 0)), False)
sketch6.addGeometry(Part.LineSegment(Vector(37, -4.5, 0), Vector(33.1, -9, 0)), False)
sketch6.addGeometry(Part.LineSegment(Vector(33.1, -9, 0), Vector(38.4, -11.9, 0)), False)
sketch6.addGeometry(Part.LineSegment(Vector(38.4, -11.9, 0), Vector(38.4, 3.1, 0)), False)
sketch6.addGeometry(Part.LineSegment(Vector(38.4, 3.1, 0), Vector(33.1, 0, 0)), False)
sketch6.addConstraint(Sketcher.Constraint("Coincident", 0, 2, 1, 1))
sketch6.addConstraint(Sketcher.Constraint("Coincident", 1, 2, 2, 1))
sketch6.addConstraint(Sketcher.Constraint("Coincident", 2, 2, 3, 1))
sketch6.addConstraint(Sketcher.Constraint("Coincident", 3, 2, 0, 1))
sketch6.addConstraint(Sketcher.Constraint("Coincident", 4, 2, 5, 1))
sketch6.addConstraint(Sketcher.Constraint("Coincident", 5, 2, 6, 1))
sketch6.addConstraint(Sketcher.Constraint("Coincident", 6, 2, 7, 1))
sketch6.addConstraint(Sketcher.Constraint("Coincident", 7, 2, 8, 1))
sketch6.addConstraint(Sketcher.Constraint("Coincident", 8, 2, 4, 1))
sketch6.addConstraint(Sketcher.Constraint("Vertical", 0))
sketch6.addConstraint(Sketcher.Constraint("Horizontal", 1))
sketch6.addConstraint(Sketcher.Constraint("Vertical", 2))
sketch6.addConstraint(Sketcher.Constraint("Horizontal", 3))
sketch6.addConstraint(Sketcher.Constraint("Vertical", 7))
sketch6.addConstraint(Sketcher.Constraint("PointOnObject", 8, 2, -1))
sketch6.addConstraint(Sketcher.Constraint("Vertical", 5, 2, 8, 2))
sketch6.addConstraint(Sketcher.Constraint("Equal", 4, 5))
sketch6.addConstraint(Sketcher.Constraint("DistanceX", 1, 1, 1, 2, 3.0))
sketch6.addConstraint(Sketcher.Constraint("DistanceX", -1, 1, 0, 2, 17.0))
sketch6.addConstraint(Sketcher.Constraint("DistanceX", -1, 1, 4, 2, 37.0))
sketch6.addConstraint(Sketcher.Constraint("DistanceY", 5, 2, -1, 1, 9.0))
sketch6.addConstraint(Sketcher.Constraint("DistanceY", 0, 2, -1, 1, 3.2))
sketch6.addConstraint(Sketcher.Constraint("Angle", 4, Q("-48.940006 deg")))
sketch6.addConstraint(Sketcher.Constraint("DistanceY", 0, 2, 0, 1, 4.019209))
sketch6.addConstraint(Sketcher.Constraint("DistanceY", 7, 1, 7, 2, 14.991597))
sketch6.addConstraint(Sketcher.Constraint("DistanceX", -1, 1, 6, 2, 38.376361))
sketch6.addConstraint(Sketcher.Constraint("DistanceY", 6, 2, -1, 1, 11.936232))
pocket3 = body3.newObject("PartDesign::Pocket", "Pocket002")
pocket3.Profile = sketch6
pocket3.Type = "ThroughAll"
body4 = doc.addObject("PartDesign::Body", "Body003")
doc.recompute()

mirroring = doc.addObject("Part::Mirroring", "Mirroring")
mirroring.Source = body3
mirroring.Base = Vector(0, 169, 0)
mirroring.Normal = Vector(0, -1, 0)
body4.BaseFeature = mirroring
doc.recompute()
body5 = doc.addObject("PartDesign::Body", "Body004")

sketch7 = body5.newObject("Sketcher::SketchObject", "Sketch006")
sketch7.AttachmentSupport = (doc.getObject("XY_Plane004"), [""])
sketch7.MapMode = "FlatFace"
sketch7.AttachmentOffset = App.Placement(Vector(0, 0, -140), App.Rotation())
sketch7.addGeometry(Part.LineSegment(Vector(17, -9, 0), Vector(11, -9, 0)), False)
sketch7.addGeometry(Part.LineSegment(Vector(11, -9, 0), Vector(11, 0, 0)), False)
sketch7.addGeometry(Part.LineSegment(Vector(11, 0, 0), Vector(4, 0, 0)), False)
sketch7.addGeometry(Part.LineSegment(Vector(4, 0, 0), Vector(4, 338, 0)), False)
sketch7.addGeometry(Part.LineSegment(Vector(4, 338, 0), Vector(11, 338, 0)), False)
sketch7.addGeometry(Part.LineSegment(Vector(11, 338, 0), Vector(11, 347, 0)), False)
sketch7.addGeometry(Part.LineSegment(Vector(11, 347, 0), Vector(17, 347, 0)), False)
sketch7.addGeometry(Part.LineSegment(Vector(17, 347, 0), Vector(17, -9, 0)), False)
sketch7.addConstraint(Sketcher.Constraint("Coincident", 0, 2, 1, 1))
sketch7.addConstraint(Sketcher.Constraint("Coincident", 1, 2, 2, 1))
sketch7.addConstraint(Sketcher.Constraint("Coincident", 2, 2, 3, 1))
sketch7.addConstraint(Sketcher.Constraint("Coincident", 3, 2, 4, 1))
sketch7.addConstraint(Sketcher.Constraint("Coincident", 4, 2, 5, 1))
sketch7.addConstraint(Sketcher.Constraint("Coincident", 5, 2, 6, 1))
sketch7.addConstraint(Sketcher.Constraint("Coincident", 6, 2, 7, 1))
sketch7.addConstraint(Sketcher.Constraint("Coincident", 7, 2, 0, 1))
sketch7.addConstraint(Sketcher.Constraint("Horizontal", 0))
sketch7.addConstraint(Sketcher.Constraint("Vertical", 1))
sketch7.addConstraint(Sketcher.Constraint("Horizontal", 2))
sketch7.addConstraint(Sketcher.Constraint("Vertical", 3))
sketch7.addConstraint(Sketcher.Constraint("Horizontal", 4))
sketch7.addConstraint(Sketcher.Constraint("Vertical", 5))
sketch7.addConstraint(Sketcher.Constraint("Horizontal", 6))
sketch7.addConstraint(Sketcher.Constraint("Vertical", 7))
sketch7.addConstraint(Sketcher.Constraint("PointOnObject", 1, 2, -1))
sketch7.addConstraint(Sketcher.Constraint("Vertical", 1, 2, 4, 2))
sketch7.addConstraint(Sketcher.Constraint("Equal", 1, 5))
sketch7.addConstraint(Sketcher.Constraint("DistanceX", 0, 2, 0, 1, 6.0))
sketch7.addConstraint(Sketcher.Constraint("DistanceY", 1, 1, 1, 2, 9.0))
sketch7.addConstraint(Sketcher.Constraint("DistanceY", 3, 1, 3, 2, 338.0))
sketch7.addConstraint(Sketcher.Constraint("DistanceX", 2, 2, 2, 1, 6.5))
sketch7.addConstraint(Sketcher.Constraint("DistanceX", -1, 1, 0, 2, 11.0))
pad4 = body5.newObject("PartDesign::Pad", "Pad003")
pad4.Profile = sketch7
pad4.Length = 8
body6 = doc.addObject("PartDesign::Body", "Body005")

sketch8 = body6.newObject("Sketcher::SketchObject", "Sketch007")
sketch8.AttachmentSupport = (doc.getObject("XY_Plane005"), [""])
sketch8.MapMode = "FlatFace"
sketch8.AttachmentOffset = App.Placement(Vector(0, 0, -140), App.Rotation())
sketch8.addGeometry(Part.LineSegment(Vector(18, 0, 0), Vector(18, 338, 0)), False)
sketch8.addGeometry(Part.LineSegment(Vector(18, 338, 0), Vector(30, 338, 0)), False)
sketch8.addGeometry(Part.LineSegment(Vector(30, 338, 0), Vector(30, 0, 0)), False)
sketch8.addGeometry(Part.LineSegment(Vector(30, 0, 0), Vector(18, 0, 0)), False)
sketch8.addConstraint(Sketcher.Constraint("Coincident", 0, 2, 1, 1))
sketch8.addConstraint(Sketcher.Constraint("Coincident", 1, 2, 2, 1))
sketch8.addConstraint(Sketcher.Constraint("Coincident", 2, 2, 3, 1))
sketch8.addConstraint(Sketcher.Constraint("Coincident", 3, 2, 0, 1))
sketch8.addConstraint(Sketcher.Constraint("Vertical", 0))
sketch8.addConstraint(Sketcher.Constraint("Horizontal", 1))
sketch8.addConstraint(Sketcher.Constraint("Vertical", 2))
sketch8.addConstraint(Sketcher.Constraint("Horizontal", 3))
sketch8.addConstraint(Sketcher.Constraint("DistanceX", 1, 1, 1, 2, 12.0))
sketch8.addConstraint(Sketcher.Constraint("DistanceY", -1, 1, 0, 2, 338.0))
sketch8.addConstraint(Sketcher.Constraint("DistanceY", 0, 1, 0, 2, 337.967608))
sketch8.addConstraint(Sketcher.Constraint("DistanceX", -1, 1, 0, 2, 18.05248))
pad5 = body6.newObject("PartDesign::Pad", "Pad004")
pad5.Profile = sketch8
pad5.Length = 8
mirroring.Visibility = False

doc.recompute()
